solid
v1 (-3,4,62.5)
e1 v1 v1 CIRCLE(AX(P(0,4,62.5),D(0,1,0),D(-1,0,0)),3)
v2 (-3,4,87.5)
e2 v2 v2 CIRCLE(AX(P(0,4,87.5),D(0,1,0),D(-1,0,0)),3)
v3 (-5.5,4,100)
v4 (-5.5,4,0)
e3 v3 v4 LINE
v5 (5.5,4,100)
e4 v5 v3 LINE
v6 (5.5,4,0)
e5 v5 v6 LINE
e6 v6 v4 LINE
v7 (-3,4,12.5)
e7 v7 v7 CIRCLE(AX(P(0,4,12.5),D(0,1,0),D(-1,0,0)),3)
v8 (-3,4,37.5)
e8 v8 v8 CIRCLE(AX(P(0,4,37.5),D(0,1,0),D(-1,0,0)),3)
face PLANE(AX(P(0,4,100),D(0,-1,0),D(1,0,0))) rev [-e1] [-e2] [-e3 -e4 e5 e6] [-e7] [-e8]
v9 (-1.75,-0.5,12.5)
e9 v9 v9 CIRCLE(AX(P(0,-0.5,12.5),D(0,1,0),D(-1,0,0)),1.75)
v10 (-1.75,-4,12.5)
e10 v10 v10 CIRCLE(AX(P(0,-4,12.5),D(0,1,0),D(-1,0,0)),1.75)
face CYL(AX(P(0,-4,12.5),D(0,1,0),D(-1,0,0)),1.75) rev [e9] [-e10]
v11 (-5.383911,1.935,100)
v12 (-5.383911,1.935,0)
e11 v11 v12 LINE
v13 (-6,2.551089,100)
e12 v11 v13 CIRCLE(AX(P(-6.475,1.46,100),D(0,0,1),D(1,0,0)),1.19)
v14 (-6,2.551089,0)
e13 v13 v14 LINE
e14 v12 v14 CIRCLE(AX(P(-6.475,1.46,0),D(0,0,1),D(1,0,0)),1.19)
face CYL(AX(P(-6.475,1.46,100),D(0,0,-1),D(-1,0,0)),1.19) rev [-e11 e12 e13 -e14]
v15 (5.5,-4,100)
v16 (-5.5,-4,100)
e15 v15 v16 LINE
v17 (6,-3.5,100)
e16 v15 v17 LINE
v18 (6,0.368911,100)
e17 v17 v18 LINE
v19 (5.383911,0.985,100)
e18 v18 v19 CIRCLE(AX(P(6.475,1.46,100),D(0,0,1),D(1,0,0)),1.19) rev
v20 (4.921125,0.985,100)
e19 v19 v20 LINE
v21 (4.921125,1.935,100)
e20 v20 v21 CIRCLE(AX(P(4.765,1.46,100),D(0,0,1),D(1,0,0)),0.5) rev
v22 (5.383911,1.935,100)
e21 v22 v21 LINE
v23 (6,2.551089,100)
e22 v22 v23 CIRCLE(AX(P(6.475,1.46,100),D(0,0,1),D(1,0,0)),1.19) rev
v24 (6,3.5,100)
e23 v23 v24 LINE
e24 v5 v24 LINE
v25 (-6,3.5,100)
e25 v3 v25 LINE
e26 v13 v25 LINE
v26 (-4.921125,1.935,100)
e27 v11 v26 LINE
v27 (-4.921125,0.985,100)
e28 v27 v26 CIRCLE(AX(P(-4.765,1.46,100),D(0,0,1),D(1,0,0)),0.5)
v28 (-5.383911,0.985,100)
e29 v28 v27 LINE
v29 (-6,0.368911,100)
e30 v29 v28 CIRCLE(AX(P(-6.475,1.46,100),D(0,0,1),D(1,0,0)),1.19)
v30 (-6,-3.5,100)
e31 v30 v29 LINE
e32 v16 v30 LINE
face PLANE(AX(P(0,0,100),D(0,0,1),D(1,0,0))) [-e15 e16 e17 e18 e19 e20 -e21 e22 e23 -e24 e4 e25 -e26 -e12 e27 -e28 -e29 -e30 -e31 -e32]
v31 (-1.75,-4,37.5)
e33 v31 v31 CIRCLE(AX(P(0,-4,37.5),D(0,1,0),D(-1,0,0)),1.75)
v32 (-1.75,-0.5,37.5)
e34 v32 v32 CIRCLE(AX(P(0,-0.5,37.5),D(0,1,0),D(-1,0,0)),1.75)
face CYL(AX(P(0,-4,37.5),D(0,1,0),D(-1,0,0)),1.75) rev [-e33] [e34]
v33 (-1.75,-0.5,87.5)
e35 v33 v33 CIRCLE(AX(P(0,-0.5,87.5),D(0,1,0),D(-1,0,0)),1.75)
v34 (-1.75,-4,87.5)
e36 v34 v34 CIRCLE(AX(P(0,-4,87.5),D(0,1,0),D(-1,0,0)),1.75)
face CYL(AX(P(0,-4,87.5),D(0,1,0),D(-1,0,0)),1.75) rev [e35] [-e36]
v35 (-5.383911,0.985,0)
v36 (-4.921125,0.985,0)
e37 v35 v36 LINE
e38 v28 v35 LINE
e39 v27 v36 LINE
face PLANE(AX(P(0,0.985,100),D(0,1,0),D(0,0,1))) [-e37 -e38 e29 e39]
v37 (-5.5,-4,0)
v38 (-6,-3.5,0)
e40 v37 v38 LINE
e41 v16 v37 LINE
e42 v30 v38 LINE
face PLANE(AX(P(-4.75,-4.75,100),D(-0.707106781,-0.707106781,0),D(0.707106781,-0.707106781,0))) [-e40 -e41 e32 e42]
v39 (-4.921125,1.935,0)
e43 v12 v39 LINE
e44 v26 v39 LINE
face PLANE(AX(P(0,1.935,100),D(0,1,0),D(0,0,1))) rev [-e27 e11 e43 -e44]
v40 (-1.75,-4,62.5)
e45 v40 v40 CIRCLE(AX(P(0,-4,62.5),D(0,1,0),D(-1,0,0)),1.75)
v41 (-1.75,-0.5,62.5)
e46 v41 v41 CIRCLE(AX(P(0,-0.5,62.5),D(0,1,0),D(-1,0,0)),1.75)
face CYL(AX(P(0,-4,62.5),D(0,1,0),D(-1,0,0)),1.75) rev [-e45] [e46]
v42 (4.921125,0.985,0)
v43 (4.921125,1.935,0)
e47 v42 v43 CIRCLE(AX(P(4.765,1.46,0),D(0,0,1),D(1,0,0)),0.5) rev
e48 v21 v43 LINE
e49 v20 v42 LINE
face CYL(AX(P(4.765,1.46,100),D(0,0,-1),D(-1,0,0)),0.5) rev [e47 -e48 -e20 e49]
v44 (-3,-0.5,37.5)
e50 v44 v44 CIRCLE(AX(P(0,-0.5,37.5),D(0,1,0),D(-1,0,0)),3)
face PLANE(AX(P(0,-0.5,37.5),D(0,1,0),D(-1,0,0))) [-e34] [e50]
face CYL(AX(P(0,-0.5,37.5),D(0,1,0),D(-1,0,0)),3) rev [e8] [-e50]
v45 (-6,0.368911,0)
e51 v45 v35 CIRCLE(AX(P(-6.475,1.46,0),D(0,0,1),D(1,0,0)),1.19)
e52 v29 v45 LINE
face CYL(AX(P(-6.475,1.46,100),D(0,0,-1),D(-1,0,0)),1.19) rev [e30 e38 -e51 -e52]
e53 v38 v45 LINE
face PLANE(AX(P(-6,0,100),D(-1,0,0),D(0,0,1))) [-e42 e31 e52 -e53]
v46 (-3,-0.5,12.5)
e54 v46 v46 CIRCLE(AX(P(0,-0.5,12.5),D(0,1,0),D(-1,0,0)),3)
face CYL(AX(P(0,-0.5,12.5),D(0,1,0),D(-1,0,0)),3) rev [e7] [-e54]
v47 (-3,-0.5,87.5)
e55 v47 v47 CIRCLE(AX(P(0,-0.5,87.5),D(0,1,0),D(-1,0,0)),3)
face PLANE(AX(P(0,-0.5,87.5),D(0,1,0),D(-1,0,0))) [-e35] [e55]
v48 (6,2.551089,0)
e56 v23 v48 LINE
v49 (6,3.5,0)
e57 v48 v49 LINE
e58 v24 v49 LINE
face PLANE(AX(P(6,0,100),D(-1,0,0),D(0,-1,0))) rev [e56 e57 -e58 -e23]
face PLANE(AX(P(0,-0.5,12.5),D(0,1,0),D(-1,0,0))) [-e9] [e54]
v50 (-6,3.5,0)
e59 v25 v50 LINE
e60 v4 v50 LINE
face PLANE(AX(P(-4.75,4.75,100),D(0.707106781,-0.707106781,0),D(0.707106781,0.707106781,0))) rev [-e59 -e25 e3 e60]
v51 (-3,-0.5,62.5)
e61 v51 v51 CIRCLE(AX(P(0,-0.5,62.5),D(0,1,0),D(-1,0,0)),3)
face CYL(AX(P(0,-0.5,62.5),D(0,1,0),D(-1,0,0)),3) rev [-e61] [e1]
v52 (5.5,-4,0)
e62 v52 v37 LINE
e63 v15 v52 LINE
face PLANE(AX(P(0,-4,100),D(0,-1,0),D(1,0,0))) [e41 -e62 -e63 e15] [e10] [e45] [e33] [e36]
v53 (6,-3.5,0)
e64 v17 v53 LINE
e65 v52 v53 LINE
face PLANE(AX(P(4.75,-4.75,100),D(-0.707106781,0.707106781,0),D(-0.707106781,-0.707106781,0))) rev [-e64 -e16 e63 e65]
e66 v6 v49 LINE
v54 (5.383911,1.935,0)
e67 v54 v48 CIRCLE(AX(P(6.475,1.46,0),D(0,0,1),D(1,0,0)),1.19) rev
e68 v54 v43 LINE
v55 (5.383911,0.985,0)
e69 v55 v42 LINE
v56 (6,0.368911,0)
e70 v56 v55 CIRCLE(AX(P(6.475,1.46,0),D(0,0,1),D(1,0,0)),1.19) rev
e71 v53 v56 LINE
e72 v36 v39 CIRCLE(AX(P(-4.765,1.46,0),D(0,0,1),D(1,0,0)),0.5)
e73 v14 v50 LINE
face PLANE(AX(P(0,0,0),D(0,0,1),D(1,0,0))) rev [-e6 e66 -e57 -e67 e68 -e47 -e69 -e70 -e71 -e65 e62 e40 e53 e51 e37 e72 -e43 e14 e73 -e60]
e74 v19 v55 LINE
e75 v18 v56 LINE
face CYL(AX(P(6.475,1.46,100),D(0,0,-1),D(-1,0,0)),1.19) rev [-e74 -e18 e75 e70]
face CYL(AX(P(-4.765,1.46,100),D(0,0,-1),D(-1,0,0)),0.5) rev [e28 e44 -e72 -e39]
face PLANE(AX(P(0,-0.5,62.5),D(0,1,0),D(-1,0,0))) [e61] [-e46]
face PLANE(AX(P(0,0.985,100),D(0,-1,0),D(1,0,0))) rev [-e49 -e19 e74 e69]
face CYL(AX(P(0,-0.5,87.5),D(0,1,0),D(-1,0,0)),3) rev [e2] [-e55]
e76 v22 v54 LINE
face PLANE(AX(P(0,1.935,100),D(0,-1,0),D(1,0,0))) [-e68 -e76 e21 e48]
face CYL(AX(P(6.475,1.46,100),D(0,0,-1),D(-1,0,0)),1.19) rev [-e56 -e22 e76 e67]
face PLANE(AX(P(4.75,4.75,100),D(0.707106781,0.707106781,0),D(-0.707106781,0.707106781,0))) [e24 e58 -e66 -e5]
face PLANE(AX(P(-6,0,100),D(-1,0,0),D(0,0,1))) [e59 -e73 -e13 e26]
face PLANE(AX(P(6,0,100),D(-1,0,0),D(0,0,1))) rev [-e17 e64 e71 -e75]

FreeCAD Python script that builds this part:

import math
import FreeCAD as App
import Part
import Sketcher

doc = App.newDocument("Part")
params = doc.addObject("Spreadsheet::Sheet", "Params")
for row, (alias, value) in enumerate([
    ("sketch1_radius", "0.5 mm"),
    ("sketch1_width", "11 mm"),
    ("sketch1_radius2", "1.19 mm"),
    ("pad1_length", "100 mm"),
    ("sketch2_diameter", "6 mm"),
    ("pocket1_length", "4.5 mm"),
    ("sketch3_diameter", "3.5 mm"),
    ("linearpattern_pitch", "25 mm"),
], start=1):
    params.set(f"A{row}", alias)
    params.set(f"B{row}", "=" + value)
    params.setAlias(f"B{row}", alias)

body = doc.addObject("PartDesign::Body", "Body")

# Sketch on XY plane
sketch1 = body.newObject("Sketcher::SketchObject", "Sketch")
sketch1.AttachmentSupport = (doc.getObject("XY_Plane"), [""])
sketch1.MapMode = "FlatFace"
sketch1.addGeometry(Part.LineSegment(App.Vector(6, -3.5, 0), App.Vector(6, 0.37, 0)), False)
sketch1.addGeometry(Part.ArcOfCircle(Part.Circle(App.Vector(6.47, 1.46, 0), App.Vector(0, 0, 1), 1.19), math.radians(-156), math.radians(-114)), False)
sketch1.addGeometry(Part.LineSegment(App.Vector(5.38, 0.98, 0), App.Vector(4.92, 0.98, 0)), False)
sketch1.addGeometry(Part.ArcOfCircle(Part.Circle(App.Vector(4.76, 1.46, 0), App.Vector(0, 0, 1), 0.5), math.radians(72), math.radians(288)), False)
sketch1.addGeometry(Part.LineSegment(App.Vector(4.92, 1.94, 0), App.Vector(5.38, 1.94, 0)), False)
sketch1.addGeometry(Part.ArcOfCircle(Part.Circle(App.Vector(6.47, 1.46, 0), App.Vector(0, 0, 1), 1.19), math.radians(114), math.radians(156)), False)
sketch1.addGeometry(Part.LineSegment(App.Vector(6, 2.55, 0), App.Vector(6, 3.5, 0)), False)
sketch1.addGeometry(Part.LineSegment(App.Vector(6, 3.5, 0), App.Vector(5.5, 4, 0)), False)
sketch1.addGeometry(Part.LineSegment(App.Vector(5.5, 4, 0), App.Vector(-5.5, 4, 0)), False)
sketch1.addGeometry(Part.LineSegment(App.Vector(-5.5, 4, 0), App.Vector(-6, 3.5, 0)), False)
sketch1.addGeometry(Part.LineSegment(App.Vector(-6, 3.5, 0), App.Vector(-6, 2.55, 0)), False)
sketch1.addGeometry(Part.ArcOfCircle(Part.Circle(App.Vector(-6.47, 1.46, 0), App.Vector(0, 0, 1), 1.19), math.radians(24), math.radians(66)), False)
sketch1.addGeometry(Part.LineSegment(App.Vector(-5.38, 1.94, 0), App.Vector(-4.92, 1.94, 0)), False)
sketch1.addGeometry(Part.ArcOfCircle(Part.Circle(App.Vector(-4.76, 1.46, 0), App.Vector(0, 0, 1), 0.5), math.radians(-108), math.radians(108)), False)
sketch1.addGeometry(Part.LineSegment(App.Vector(-4.92, 0.98, 0), App.Vector(-5.38, 0.98, 0)), False)
sketch1.addGeometry(Part.ArcOfCircle(Part.Circle(App.Vector(-6.47, 1.46, 0), App.Vector(0, 0, 1), 1.19), math.radians(-66), math.radians(-24)), False)
sketch1.addGeometry(Part.LineSegment(App.Vector(-6, 0.37, 0), App.Vector(-6, -3.5, 0)), False)
sketch1.addGeometry(Part.LineSegment(App.Vector(-6, -3.5, 0), App.Vector(-5.5, -4, 0)), False)
sketch1.addGeometry(Part.LineSegment(App.Vector(-5.5, -4, 0), App.Vector(5.5, -4, 0)), False)
sketch1.addGeometry(Part.LineSegment(App.Vector(5.5, -4, 0), App.Vector(6, -3.5, 0)), False)
sketch1.addConstraint(Sketcher.Constraint("Coincident", 0, 2, 1, 2))
sketch1.addConstraint(Sketcher.Constraint("Coincident", 1, 1, 2, 1))
sketch1.addConstraint(Sketcher.Constraint("Coincident", 2, 2, 3, 2))
sketch1.addConstraint(Sketcher.Constraint("Coincident", 3, 1, 4, 1))
sketch1.addConstraint(Sketcher.Constraint("Coincident", 4, 2, 5, 2))
sketch1.addConstraint(Sketcher.Constraint("Coincident", 5, 1, 6, 1))
sketch1.addConstraint(Sketcher.Constraint("Coincident", 6, 2, 7, 1))
sketch1.addConstraint(Sketcher.Constraint("Coincident", 7, 2, 8, 1))
sketch1.addConstraint(Sketcher.Constraint("Coincident", 8, 2, 9, 1))
sketch1.addConstraint(Sketcher.Constraint("Coincident", 9, 2, 10, 1))
sketch1.addConstraint(Sketcher.Constraint("Coincident", 10, 2, 11, 2))
sketch1.addConstraint(Sketcher.Constraint("Coincident", 11, 1, 12, 1))
sketch1.addConstraint(Sketcher.Constraint("Coincident", 12, 2, 13, 2))
sketch1.addConstraint(Sketcher.Constraint("Coincident", 13, 1, 14, 1))
sketch1.addConstraint(Sketcher.Constraint("Coincident", 14, 2, 15, 2))
sketch1.addConstraint(Sketcher.Constraint("Coincident", 15, 1, 16, 1))
sketch1.addConstraint(Sketcher.Constraint("Coincident", 16, 2, 17, 1))
sketch1.addConstraint(Sketcher.Constraint("Coincident", 17, 2, 18, 1))
sketch1.addConstraint(Sketcher.Constraint("Coincident", 18, 2, 19, 1))
sketch1.addConstraint(Sketcher.Constraint("Coincident", 19, 2, 0, 1))
sketch1.addConstraint(Sketcher.Constraint("Vertical", 0))
sketch1.addConstraint(Sketcher.Constraint("Horizontal", 2))
sketch1.addConstraint(Sketcher.Constraint("Horizontal", 4))
sketch1.addConstraint(Sketcher.Constraint("Vertical", 6))
sketch1.addConstraint(Sketcher.Constraint("Horizontal", 8))
sketch1.addConstraint(Sketcher.Constraint("Vertical", 10))
sketch1.addConstraint(Sketcher.Constraint("Horizontal", 12))
sketch1.addConstraint(Sketcher.Constraint("Horizontal", 14))
sketch1.addConstraint(Sketcher.Constraint("Vertical", 16))
sketch1.addConstraint(Sketcher.Constraint("Horizontal", 18))
sketch1.addConstraint(Sketcher.Constraint("Coincident", 5, 3, 1, 3))
sketch1.addConstraint(Sketcher.Constraint("Coincident", 15, 3, 11, 3))
sketch1.addConstraint(Sketcher.Constraint("Equal", 1, 5))
sketch1.addConstraint(Sketcher.Constraint("Equal", 5, 11))
sketch1.addConstraint(Sketcher.Constraint("Equal", 3, 13))
sketch1.addConstraint(Sketcher.Constraint("Equal", 11, 15))
sketch1.addConstraint(Sketcher.Constraint("Symmetric", 6, 2, 16, 2, -1, 1))
sketch1.addConstraint(Sketcher.Constraint("Symmetric", 7, 2, 17, 2, -1, 1))
sketch1.addConstraint(Sketcher.Constraint("Symmetric", 9, 2, 19, 2, -1, 1))
sketch1.addConstraint(Sketcher.Constraint("Symmetric", 1, 3, 11, 3, -2))
sketch1.addConstraint(Sketcher.Constraint("Symmetric", 3, 3, 13, 3, -2))
sketch1.addConstraint(Sketcher.Constraint("Symmetric", 6, 2, 9, 2, -2))
sketch1.addConstraint(Sketcher.Constraint("Perpendicular", 7, 9))
sketch1.addConstraint(Sketcher.Constraint("Perpendicular", 17, 19))
sketch1.addConstraint(Sketcher.Constraint("Horizontal", 1, 3, 3, 3))
sketch1.addConstraint(Sketcher.Constraint("Horizontal", 4, 2, 11, 1))
sketch1.addConstraint(Sketcher.Constraint("Horizontal", 2, 2, 13, 1))
sketch1.addConstraint(Sketcher.Constraint("Vertical", 2, 2, 3, 1))
sketch1.addConstraint(Sketcher.Constraint("Vertical", 8, 2, 17, 2))
sketch1.addConstraint(Sketcher.Constraint("Radius", 3, 0.5))
sketch1.addConstraint(Sketcher.Constraint("DistanceX", 8, 2, 8, 1, 11.0))
sketch1.addConstraint(Sketcher.Constraint("Radius", 1, 1.19))
sketch1.addConstraint(Sketcher.Constraint("DistanceX", -1, 1, 0, 2, 6.0))
sketch1.addConstraint(Sketcher.Constraint("DistanceY", -1, 1, 7, 2, 4.0))
sketch1.addConstraint(Sketcher.Constraint("DistanceY", -1, 1, 1, 3, 1.46))
sketch1.addConstraint(Sketcher.Constraint("DistanceX", 3, 3, 1, 3, 1.71))
sketch1.addConstraint(Sketcher.Constraint("DistanceX", 11, 3, 3, 3, 11.24))
sketch1.addConstraint(Sketcher.Constraint("DistanceY", 2, 2, 3, 1, 0.95))
sketch1.setExpression("Constraints[49]", "Params.sketch1_radius")
sketch1.setExpression("Constraints[50]", "Params.sketch1_width")
sketch1.setExpression("Constraints[51]", "Params.sketch1_radius2")
pad1 = body.newObject("PartDesign::Pad", "Pad")
pad1.Profile = sketch1
pad1.setExpression("Length", "Params.pad1_length")

# Sketch on XZ plane
sketch2 = body.newObject("Sketcher::SketchObject", "Sketch001")
sketch2.AttachmentSupport = (doc.getObject("XZ_Plane"), [""])
sketch2.MapMode = "FlatFace"
sketch2.AttachmentOffset = App.Placement(App.Vector(0, 0, -4), App.Rotation())
sketch2.addGeometry(Part.Circle(App.Vector(0, 12.5, 0), App.Vector(0, 0, 1), 3), False)
sketch2.addConstraint(Sketcher.Constraint("PointOnObject", 0, 3, -2))
sketch2.addConstraint(Sketcher.Constraint("Diameter", 0, 6.0))
sketch2.addConstraint(Sketcher.Constraint("DistanceY", -1, 1, 0, 3, 12.5))
sketch2.setExpression("Constraints[1]", "Params.sketch2_diameter")
pocket1 = body.newObject("PartDesign::Pocket", "Pocket")
pocket1.Profile = sketch2
pocket1.setExpression("Length", "Params.pocket1_length")
pocket1.Reversed = True

# Sketch on XZ plane
sketch3 = body.newObject("Sketcher::SketchObject", "Sketch002")
sketch3.AttachmentSupport = (doc.getObject("XZ_Plane"), [""])
sketch3.MapMode = "FlatFace"
sketch3.AttachmentOffset = App.Placement(App.Vector(0, 0, 0.5), App.Rotation())
sketch3.addGeometry(Part.Circle(App.Vector(0, 12.5, 0), App.Vector(0, 0, 1), 1.8), False)
sketch3.addConstraint(Sketcher.Constraint("PointOnObject", 0, 3, -2))
sketch3.addConstraint(Sketcher.Constraint("Diameter", 0, 3.5))
sketch3.addConstraint(Sketcher.Constraint("DistanceY", -1, 1, 0, 3, 12.5))
sketch3.setExpression("Constraints[1]", "Params.sketch3_diameter")
pocket2 = body.newObject("PartDesign::Pocket", "Pocket001")
pocket2.Profile = sketch3
pocket2.Type = "ThroughAll"
pocket2.Reversed = True
doc.recompute()

linearpattern = body.newObject("PartDesign::LinearPattern", "LinearPattern")
linearpattern.Originals = [pocket1, pocket2]
linearpattern.Direction = (doc.getObject("Z_Axis"), [""])
linearpattern.Mode = "offset"
linearpattern.setExpression("Offset", "Params.linearpattern_pitch")
linearpattern.Occurrences = 4
body.Tip = linearpattern

doc.recompute()
